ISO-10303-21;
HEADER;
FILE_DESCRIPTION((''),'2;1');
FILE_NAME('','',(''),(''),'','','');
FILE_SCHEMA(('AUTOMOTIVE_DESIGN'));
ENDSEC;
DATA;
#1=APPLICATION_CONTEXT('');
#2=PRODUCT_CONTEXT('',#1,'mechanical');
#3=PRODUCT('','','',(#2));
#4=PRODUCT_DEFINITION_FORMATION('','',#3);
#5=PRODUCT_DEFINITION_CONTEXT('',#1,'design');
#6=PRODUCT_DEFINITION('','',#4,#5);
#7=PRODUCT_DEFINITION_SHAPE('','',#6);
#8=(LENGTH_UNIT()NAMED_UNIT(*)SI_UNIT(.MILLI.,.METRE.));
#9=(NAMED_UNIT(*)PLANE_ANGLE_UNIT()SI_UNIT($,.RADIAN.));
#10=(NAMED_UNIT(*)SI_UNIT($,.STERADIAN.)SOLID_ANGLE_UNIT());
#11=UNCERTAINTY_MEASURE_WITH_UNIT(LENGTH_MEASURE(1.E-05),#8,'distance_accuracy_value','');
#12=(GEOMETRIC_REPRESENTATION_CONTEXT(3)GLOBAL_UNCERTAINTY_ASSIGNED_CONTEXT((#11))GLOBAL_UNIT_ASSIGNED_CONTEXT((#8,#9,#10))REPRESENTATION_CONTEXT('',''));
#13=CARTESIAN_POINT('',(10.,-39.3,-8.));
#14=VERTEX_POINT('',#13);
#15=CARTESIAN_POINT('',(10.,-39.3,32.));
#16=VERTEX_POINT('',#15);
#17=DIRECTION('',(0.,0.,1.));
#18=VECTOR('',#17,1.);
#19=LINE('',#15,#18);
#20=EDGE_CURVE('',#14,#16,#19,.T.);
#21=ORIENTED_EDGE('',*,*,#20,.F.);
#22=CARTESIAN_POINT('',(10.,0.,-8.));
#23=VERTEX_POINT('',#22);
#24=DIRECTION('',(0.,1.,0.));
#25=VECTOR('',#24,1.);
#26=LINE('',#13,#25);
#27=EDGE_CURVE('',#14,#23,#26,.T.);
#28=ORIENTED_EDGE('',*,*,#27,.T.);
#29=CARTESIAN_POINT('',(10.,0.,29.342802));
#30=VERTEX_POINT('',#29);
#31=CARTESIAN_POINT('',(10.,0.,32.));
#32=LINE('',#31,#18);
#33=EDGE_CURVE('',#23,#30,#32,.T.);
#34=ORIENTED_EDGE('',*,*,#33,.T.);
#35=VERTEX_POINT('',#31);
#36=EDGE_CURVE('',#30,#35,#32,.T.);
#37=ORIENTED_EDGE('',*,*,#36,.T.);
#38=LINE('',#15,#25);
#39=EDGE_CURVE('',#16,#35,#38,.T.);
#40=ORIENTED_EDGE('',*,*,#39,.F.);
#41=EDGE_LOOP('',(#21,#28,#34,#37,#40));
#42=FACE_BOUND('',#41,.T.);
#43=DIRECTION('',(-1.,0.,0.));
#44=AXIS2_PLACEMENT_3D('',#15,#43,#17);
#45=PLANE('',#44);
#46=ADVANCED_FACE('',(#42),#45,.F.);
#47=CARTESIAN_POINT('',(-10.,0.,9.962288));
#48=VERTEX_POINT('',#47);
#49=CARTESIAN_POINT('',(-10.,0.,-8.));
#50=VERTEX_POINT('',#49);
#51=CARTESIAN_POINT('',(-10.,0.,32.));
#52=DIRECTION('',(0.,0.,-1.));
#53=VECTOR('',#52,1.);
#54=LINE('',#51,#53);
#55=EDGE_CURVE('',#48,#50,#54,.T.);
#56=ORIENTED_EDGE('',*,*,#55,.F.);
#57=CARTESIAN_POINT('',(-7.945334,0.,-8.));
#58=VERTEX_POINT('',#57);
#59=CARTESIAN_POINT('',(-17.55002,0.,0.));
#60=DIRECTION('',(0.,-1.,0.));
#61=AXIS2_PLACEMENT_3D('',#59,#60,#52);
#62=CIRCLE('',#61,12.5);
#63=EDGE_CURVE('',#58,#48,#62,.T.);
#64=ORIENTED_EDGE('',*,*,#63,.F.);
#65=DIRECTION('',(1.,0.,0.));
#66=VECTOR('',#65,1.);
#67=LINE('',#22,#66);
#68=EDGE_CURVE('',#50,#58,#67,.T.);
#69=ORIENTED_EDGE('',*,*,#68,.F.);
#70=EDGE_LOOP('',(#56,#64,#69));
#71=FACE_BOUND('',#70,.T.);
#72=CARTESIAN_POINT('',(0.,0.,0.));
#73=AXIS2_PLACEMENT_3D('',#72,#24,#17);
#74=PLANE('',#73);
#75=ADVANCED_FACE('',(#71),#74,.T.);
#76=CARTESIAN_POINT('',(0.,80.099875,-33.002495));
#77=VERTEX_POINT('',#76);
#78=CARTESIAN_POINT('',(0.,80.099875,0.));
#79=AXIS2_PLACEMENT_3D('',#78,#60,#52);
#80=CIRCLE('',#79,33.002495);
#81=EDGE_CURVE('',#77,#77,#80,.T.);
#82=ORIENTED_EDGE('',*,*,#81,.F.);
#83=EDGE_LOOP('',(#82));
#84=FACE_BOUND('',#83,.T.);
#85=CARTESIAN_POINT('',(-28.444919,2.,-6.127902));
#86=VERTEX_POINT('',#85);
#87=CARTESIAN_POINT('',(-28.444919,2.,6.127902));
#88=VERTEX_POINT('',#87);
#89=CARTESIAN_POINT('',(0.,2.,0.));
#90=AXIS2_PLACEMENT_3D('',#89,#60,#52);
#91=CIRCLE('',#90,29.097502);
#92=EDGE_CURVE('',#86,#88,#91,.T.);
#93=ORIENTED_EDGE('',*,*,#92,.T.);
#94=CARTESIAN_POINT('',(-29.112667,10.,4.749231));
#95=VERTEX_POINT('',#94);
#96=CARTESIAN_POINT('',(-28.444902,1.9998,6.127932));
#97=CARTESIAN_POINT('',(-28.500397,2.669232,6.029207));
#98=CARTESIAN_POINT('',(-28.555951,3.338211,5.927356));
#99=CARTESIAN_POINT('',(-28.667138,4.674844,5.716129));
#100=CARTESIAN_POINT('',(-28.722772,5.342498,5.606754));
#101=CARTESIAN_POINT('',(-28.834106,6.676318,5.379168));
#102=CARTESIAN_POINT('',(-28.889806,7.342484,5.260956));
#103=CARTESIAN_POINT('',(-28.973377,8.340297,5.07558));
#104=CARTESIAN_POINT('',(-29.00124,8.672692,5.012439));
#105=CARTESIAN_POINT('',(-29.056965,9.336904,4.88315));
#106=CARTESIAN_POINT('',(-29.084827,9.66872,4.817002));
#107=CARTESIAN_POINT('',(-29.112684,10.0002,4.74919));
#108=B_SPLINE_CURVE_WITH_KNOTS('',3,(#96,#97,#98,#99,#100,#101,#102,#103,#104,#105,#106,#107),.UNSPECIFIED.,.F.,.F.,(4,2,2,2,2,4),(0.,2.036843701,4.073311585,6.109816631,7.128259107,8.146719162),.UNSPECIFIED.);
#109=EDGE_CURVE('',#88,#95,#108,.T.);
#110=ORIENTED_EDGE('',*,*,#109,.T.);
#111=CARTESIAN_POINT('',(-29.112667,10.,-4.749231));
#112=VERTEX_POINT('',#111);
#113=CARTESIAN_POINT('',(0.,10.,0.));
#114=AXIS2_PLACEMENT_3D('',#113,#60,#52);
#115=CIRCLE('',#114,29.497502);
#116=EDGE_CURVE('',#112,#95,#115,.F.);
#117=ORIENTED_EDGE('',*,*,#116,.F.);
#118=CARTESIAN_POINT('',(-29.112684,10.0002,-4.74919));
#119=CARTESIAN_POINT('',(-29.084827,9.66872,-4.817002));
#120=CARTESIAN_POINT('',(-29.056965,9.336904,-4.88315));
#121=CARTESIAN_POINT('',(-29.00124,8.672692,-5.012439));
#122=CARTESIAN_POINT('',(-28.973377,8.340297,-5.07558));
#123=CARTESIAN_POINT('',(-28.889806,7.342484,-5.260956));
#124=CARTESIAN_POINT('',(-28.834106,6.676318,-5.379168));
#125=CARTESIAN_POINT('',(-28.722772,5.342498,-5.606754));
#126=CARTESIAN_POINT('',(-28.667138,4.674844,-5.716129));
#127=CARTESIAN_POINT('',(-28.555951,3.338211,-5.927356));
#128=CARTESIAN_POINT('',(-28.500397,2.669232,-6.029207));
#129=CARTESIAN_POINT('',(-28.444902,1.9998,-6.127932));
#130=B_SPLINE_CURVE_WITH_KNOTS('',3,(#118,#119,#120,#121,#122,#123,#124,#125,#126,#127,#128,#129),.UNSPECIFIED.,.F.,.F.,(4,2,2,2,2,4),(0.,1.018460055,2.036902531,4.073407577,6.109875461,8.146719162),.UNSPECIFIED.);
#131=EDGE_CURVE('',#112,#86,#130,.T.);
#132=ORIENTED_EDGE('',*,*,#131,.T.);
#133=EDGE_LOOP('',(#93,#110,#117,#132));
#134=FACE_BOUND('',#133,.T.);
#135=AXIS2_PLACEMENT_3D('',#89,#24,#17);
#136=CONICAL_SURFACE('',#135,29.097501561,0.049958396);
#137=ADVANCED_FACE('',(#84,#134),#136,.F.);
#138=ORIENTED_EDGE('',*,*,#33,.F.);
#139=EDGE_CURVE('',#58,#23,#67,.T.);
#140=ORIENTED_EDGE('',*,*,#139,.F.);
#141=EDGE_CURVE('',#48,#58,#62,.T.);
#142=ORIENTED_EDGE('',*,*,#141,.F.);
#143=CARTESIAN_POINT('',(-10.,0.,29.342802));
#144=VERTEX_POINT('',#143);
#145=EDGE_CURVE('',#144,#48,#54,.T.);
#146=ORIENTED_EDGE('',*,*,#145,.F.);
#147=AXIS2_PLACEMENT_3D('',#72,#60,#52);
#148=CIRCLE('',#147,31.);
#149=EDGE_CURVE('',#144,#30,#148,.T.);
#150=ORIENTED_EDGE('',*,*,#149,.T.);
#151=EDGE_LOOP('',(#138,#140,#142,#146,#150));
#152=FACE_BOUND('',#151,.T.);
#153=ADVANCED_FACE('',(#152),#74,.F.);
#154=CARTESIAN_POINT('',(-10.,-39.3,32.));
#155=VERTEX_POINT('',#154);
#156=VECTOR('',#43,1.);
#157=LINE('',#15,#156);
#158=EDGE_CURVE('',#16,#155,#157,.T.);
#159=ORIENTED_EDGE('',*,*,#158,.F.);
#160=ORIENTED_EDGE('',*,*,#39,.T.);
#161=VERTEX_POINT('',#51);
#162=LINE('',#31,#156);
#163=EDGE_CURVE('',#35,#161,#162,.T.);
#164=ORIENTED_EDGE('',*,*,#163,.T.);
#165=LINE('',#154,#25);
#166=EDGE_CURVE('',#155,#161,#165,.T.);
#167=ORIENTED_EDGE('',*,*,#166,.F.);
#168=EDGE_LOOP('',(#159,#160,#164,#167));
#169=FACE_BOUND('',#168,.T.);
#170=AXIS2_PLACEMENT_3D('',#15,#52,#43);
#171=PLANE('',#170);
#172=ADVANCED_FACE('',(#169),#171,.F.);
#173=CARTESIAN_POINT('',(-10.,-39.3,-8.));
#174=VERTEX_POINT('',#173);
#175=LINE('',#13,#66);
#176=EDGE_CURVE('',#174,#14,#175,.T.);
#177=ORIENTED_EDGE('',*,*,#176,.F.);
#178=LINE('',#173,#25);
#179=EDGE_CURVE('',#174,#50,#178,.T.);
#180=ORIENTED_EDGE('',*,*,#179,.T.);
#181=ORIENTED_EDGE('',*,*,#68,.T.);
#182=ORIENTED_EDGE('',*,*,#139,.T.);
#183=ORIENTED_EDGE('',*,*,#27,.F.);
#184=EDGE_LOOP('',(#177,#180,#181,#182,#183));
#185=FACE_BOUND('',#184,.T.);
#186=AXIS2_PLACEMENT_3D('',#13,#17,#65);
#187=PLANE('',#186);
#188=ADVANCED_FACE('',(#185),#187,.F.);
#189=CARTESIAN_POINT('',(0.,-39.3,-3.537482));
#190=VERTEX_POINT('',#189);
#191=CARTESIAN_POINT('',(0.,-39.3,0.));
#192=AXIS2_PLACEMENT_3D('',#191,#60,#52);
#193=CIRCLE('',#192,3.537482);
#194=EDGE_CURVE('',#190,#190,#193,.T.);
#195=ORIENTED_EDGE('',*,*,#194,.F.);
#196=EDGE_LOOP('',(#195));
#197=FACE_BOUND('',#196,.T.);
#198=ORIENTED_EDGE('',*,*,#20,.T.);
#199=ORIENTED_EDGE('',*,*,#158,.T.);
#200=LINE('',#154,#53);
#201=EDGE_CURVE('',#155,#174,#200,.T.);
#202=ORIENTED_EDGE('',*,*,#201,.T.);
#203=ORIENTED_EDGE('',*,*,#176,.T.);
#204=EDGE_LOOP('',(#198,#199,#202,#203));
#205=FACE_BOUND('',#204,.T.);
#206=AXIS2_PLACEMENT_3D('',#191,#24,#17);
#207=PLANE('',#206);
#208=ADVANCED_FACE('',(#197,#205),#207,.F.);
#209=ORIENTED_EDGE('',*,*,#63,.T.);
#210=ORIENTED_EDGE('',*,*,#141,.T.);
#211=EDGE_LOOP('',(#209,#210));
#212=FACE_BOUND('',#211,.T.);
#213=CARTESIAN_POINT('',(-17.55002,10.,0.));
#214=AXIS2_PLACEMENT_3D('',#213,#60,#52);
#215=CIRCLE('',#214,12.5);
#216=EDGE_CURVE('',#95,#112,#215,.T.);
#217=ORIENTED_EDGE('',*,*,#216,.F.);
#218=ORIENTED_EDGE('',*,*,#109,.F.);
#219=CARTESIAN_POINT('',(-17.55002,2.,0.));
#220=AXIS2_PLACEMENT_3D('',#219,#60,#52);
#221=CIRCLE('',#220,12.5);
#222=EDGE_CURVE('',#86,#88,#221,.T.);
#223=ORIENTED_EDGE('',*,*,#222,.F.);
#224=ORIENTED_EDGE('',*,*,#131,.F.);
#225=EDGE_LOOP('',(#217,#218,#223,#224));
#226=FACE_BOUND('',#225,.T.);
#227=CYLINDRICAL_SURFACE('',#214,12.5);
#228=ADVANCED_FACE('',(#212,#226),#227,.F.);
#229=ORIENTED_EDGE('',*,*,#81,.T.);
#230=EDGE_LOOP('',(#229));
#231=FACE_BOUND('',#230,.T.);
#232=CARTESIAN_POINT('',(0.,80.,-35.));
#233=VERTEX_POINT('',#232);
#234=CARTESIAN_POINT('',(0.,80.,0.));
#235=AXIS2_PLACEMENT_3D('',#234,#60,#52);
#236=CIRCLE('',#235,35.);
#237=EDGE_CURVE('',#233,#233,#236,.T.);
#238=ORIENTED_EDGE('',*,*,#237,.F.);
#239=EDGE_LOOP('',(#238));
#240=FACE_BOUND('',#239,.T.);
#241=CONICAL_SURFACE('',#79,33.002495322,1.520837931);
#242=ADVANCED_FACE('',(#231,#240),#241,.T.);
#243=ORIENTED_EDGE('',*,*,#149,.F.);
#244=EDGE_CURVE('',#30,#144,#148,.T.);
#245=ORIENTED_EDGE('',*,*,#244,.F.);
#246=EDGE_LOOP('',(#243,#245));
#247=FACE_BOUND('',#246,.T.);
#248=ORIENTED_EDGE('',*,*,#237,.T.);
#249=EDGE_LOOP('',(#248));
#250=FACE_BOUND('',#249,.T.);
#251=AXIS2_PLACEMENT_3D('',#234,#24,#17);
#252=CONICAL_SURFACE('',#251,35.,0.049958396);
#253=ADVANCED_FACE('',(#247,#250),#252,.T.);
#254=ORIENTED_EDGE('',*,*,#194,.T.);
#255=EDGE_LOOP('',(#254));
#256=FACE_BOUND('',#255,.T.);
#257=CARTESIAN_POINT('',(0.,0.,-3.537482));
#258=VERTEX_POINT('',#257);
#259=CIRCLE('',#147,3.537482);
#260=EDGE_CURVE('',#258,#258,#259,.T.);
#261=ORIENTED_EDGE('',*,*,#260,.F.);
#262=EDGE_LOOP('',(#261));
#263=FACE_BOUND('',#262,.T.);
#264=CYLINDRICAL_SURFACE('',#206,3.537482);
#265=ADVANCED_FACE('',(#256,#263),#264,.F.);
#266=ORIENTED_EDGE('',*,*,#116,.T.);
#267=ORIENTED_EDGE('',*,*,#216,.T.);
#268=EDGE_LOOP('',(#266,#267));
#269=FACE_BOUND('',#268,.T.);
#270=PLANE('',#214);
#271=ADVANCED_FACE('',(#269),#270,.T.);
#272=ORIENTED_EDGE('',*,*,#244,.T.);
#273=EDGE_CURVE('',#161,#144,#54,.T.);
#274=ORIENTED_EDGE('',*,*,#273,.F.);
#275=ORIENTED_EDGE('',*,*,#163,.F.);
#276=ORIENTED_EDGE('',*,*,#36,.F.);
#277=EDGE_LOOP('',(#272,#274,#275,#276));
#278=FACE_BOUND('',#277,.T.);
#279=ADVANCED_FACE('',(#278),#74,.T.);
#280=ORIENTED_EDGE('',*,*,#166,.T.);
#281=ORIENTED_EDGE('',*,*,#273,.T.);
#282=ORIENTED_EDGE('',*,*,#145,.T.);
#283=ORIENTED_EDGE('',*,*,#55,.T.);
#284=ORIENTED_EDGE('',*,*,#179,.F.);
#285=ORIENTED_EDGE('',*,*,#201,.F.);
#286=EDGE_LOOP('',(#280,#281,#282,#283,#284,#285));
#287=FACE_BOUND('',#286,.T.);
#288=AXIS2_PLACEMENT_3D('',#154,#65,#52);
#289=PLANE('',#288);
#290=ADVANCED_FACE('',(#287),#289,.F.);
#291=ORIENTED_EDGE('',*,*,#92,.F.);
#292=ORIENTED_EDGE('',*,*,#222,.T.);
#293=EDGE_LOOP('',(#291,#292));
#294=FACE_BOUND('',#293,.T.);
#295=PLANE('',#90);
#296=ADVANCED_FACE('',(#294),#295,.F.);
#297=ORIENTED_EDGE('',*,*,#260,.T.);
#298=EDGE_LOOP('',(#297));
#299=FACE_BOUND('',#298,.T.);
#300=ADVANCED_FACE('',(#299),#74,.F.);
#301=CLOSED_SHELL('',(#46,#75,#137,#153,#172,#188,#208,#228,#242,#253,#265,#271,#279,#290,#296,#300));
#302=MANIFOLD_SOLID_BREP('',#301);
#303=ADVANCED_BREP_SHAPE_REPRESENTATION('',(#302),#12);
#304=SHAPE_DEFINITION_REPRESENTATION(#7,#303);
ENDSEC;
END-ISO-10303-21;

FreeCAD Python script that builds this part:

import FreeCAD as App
import Part
import Sketcher

V = App.Vector

doc = App.newDocument("Part")
body = doc.addObject("PartDesign::Body", "Body")

# Sketch on XY plane
sketch1 = body.newObject("Sketcher::SketchObject", "Sketch")
sketch1.AttachmentSupport = (doc.getObject("XY_Plane"), [""])
sketch1.MapMode = "FlatFace"
sketch1.addGeometry(Part.LineSegment(V(-31, 0, 0), V(0, 0, 0)), False)
sketch1.addGeometry(Part.LineSegment(V(0, 0, 0), V(0, 2, 0)), False)
sketch1.addGeometry(Part.LineSegment(V(0, 2, 0), V(-29.097502, 2, 0)), False)
sketch1.addGeometry(Part.LineSegment(V(-29.097502, 2, 0), V(-33.002495, 80.099875, 0)), False)
sketch1.addGeometry(Part.LineSegment(V(-33.002495, 80.099875, 0), V(-35, 80, 0)), False)
sketch1.addGeometry(Part.LineSegment(V(-35, 80, 0), V(-31, 0, 0)), False)
sketch1.addConstraint(Sketcher.Constraint("Coincident", 0, 2, 1, 1))
sketch1.addConstraint(Sketcher.Constraint("Coincident", 1, 2, 2, 1))
sketch1.addConstraint(Sketcher.Constraint("Coincident", 2, 2, 3, 1))
sketch1.addConstraint(Sketcher.Constraint("Coincident", 3, 2, 4, 1))
sketch1.addConstraint(Sketcher.Constraint("Coincident", 4, 2, 5, 1))
sketch1.addConstraint(Sketcher.Constraint("Coincident", 5, 2, 0, 1))
sketch1.addConstraint(Sketcher.Constraint("Horizontal", 0))
sketch1.addConstraint(Sketcher.Constraint("Vertical", 1))
sketch1.addConstraint(Sketcher.Constraint("Horizontal", 2))
sketch1.addConstraint(Sketcher.Constraint("Coincident", 0, 2, -1, 1))
sketch1.addConstraint(Sketcher.Constraint("Perpendicular", 3, 4))
sketch1.addConstraint(Sketcher.Constraint("Perpendicular", 4, 5))
sketch1.addConstraint(Sketcher.Constraint("DistanceX", 0, 1, 0, 2, 31.0))
sketch1.addConstraint(Sketcher.Constraint("DistanceY", 1, 1, 1, 2, 2.0))
sketch1.addConstraint(Sketcher.Constraint("Distance", 4, 2.0))
sketch1.addConstraint(Sketcher.Constraint("DistanceX", 4, 2, -1, 1, 35.0))
sketch1.addConstraint(Sketcher.Constraint("DistanceY", -1, 1, 4, 2, 80.0))
revolution = body.newObject("PartDesign::Revolution", "Revolution")
revolution.Profile = sketch1
revolution.ReferenceAxis = (sketch1, ["V_Axis"])
revolution.Angle = 360

# Sketch on XZ plane
sketch2 = body.newObject("Sketcher::SketchObject", "Sketch001")
sketch2.AttachmentSupport = (doc.getObject("XZ_Plane"), [""])
sketch2.MapMode = "FlatFace"
sketch2.addGeometry(Part.Circle(V(-17.55002, 0, 0), V(0, 0, 1), 12.5), False)
sketch2.addConstraint(Sketcher.Constraint("PointOnObject", 0, 3, -1))
sketch2.addConstraint(Sketcher.Constraint("Diameter", 0, 25.0))
sketch2.addConstraint(Sketcher.Constraint("DistanceX", 0, 3, -1, 1, 17.55002))
pocket1 = body.newObject("PartDesign::Pocket", "Pocket")
pocket1.Profile = sketch2
pocket1.Length = 10

# Sketch on XZ plane
sketch3 = body.newObject("Sketcher::SketchObject", "Sketch002")
sketch3.AttachmentSupport = (doc.getObject("XZ_Plane"), [""])
sketch3.MapMode = "FlatFace"
sketch3.addGeometry(Part.LineSegment(V(-10, 32, 0), V(-10, -8, 0)), False)
sketch3.addGeometry(Part.LineSegment(V(-10, -8, 0), V(10, -8, 0)), False)
sketch3.addGeometry(Part.LineSegment(V(10, -8, 0), V(10, 32, 0)), False)
sketch3.addGeometry(Part.LineSegment(V(10, 32, 0), V(-10, 32, 0)), False)
sketch3.addGeometry(Part.Circle(V(0, 0, 0), V(0, 0, 1), 3.537482), False)
sketch3.addConstraint(Sketcher.Constraint("Coincident", 0, 2, 1, 1))
sketch3.addConstraint(Sketcher.Constraint("Coincident", 1, 2, 2, 1))
sketch3.addConstraint(Sketcher.Constraint("Coincident", 2, 2, 3, 1))
sketch3.addConstraint(Sketcher.Constraint("Coincident", 3, 2, 0, 1))
sketch3.addConstraint(Sketcher.Constraint("Vertical", 0))
sketch3.addConstraint(Sketcher.Constraint("Horizontal", 1))
sketch3.addConstraint(Sketcher.Constraint("Vertical", 2))
sketch3.addConstraint(Sketcher.Constraint("Horizontal", 3))
sketch3.addConstraint(Sketcher.Constraint("Coincident", 4, 3, -1, 1))
sketch3.addConstraint(Sketcher.Constraint("DistanceX", 1, 1, 1, 2, 20.0))
sketch3.addConstraint(Sketcher.Constraint("DistanceY", 0, 2, 0, 1, 40.0))
sketch3.addConstraint(Sketcher.Constraint("DistanceX", 0, 2, -1, 1, 10.0))
sketch3.addConstraint(Sketcher.Constraint("DistanceY", 0, 2, -1, 1, 8.0))
sketch3.addConstraint(Sketcher.Constraint("Diameter", 4, 7.074964))
pad1 = body.newObject("PartDesign::Pad", "Pad")
pad1.Profile = sketch3
pad1.Length = 39.3

doc.recompute()
